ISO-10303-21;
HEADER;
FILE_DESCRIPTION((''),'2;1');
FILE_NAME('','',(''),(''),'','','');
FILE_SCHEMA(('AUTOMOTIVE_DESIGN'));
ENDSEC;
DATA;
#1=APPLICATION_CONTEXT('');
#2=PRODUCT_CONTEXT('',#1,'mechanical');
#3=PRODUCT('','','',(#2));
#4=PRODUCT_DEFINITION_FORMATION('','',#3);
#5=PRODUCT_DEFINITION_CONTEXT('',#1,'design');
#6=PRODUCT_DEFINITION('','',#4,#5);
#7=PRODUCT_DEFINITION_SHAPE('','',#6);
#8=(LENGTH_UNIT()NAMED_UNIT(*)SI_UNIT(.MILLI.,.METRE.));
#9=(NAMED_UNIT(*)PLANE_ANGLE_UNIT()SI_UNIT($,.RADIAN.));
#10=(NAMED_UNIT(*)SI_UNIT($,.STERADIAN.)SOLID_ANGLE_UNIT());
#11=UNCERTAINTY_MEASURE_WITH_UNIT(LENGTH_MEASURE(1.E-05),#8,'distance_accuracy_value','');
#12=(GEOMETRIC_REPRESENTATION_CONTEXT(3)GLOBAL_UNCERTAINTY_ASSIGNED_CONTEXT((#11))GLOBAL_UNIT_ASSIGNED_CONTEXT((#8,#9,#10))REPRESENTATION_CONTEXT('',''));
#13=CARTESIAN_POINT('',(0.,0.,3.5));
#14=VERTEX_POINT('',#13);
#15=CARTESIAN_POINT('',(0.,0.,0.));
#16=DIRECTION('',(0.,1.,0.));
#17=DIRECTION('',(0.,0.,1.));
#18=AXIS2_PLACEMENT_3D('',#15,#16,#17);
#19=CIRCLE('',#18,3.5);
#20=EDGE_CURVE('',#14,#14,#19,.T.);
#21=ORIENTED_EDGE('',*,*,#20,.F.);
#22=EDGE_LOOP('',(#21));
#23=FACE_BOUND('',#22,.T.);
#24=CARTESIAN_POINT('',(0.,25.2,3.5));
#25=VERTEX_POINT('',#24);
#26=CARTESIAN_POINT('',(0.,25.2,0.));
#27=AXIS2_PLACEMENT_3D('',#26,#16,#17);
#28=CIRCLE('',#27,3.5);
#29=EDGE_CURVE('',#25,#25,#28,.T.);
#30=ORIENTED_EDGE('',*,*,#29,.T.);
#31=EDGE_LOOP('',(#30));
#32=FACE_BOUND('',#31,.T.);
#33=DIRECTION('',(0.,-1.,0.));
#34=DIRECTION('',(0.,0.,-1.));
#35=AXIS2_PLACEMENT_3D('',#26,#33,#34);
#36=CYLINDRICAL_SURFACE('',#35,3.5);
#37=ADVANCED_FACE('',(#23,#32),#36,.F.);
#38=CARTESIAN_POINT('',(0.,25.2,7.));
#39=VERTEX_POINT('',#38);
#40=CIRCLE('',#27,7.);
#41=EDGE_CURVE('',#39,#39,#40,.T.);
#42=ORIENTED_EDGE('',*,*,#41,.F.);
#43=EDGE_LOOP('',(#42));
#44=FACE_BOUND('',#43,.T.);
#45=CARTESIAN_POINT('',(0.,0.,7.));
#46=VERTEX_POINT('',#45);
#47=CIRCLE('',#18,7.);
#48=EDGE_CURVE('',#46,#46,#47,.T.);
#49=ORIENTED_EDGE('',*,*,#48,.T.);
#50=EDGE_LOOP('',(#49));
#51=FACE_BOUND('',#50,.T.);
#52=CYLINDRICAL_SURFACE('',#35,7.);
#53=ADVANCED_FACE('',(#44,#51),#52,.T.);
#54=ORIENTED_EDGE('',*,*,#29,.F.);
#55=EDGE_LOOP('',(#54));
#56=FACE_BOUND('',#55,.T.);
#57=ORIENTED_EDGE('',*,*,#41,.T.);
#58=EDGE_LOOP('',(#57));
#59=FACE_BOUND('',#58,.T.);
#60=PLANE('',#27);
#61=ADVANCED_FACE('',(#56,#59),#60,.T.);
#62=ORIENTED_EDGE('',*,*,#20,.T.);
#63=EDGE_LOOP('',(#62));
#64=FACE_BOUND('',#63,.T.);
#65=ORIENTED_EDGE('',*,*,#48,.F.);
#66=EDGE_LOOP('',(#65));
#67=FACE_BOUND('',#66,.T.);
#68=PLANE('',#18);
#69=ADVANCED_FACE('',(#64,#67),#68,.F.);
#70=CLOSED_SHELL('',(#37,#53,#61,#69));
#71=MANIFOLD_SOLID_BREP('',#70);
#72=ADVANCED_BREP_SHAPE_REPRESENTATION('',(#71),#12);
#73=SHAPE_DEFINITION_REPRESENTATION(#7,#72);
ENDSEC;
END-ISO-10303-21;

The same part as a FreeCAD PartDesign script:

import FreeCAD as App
import Part
import Sketcher

V = App.Vector

doc = App.newDocument("Part")
body = doc.addObject("PartDesign::Body", "Body")

# Sketch on XZ plane
sketch1 = doc.addObject("Sketcher::SketchObject", "Sketch")
body.addObject(sketch1)
sketch1.AttachmentSupport = (doc.XZ_Plane, [""])
sketch1.MapMode = "FlatFace"
sketch1.addGeometry([
    Part.Circle(V(0, 0, 0), V(0, 0, 1), 7),
    Part.Circle(V(0, 0, 0), V(0, 0, 1), 3.5),
], False)
sketch1.addConstraint([
    Sketcher.Constraint("Coincident", 0, 3, -1, 1),
    Sketcher.Constraint("Coincident", 1, 3, -1, 1),
    Sketcher.Constraint("Diameter", 0, 14.0),
    Sketcher.Constraint("Diameter", 1, 7.0),
])
pad1 = doc.addObject("PartDesign::Pad", "Pad")
body.addObject(pad1)
pad1.Profile = sketch1
pad1.Length = 25.2
pad1.Reversed = True

doc.recompute()
